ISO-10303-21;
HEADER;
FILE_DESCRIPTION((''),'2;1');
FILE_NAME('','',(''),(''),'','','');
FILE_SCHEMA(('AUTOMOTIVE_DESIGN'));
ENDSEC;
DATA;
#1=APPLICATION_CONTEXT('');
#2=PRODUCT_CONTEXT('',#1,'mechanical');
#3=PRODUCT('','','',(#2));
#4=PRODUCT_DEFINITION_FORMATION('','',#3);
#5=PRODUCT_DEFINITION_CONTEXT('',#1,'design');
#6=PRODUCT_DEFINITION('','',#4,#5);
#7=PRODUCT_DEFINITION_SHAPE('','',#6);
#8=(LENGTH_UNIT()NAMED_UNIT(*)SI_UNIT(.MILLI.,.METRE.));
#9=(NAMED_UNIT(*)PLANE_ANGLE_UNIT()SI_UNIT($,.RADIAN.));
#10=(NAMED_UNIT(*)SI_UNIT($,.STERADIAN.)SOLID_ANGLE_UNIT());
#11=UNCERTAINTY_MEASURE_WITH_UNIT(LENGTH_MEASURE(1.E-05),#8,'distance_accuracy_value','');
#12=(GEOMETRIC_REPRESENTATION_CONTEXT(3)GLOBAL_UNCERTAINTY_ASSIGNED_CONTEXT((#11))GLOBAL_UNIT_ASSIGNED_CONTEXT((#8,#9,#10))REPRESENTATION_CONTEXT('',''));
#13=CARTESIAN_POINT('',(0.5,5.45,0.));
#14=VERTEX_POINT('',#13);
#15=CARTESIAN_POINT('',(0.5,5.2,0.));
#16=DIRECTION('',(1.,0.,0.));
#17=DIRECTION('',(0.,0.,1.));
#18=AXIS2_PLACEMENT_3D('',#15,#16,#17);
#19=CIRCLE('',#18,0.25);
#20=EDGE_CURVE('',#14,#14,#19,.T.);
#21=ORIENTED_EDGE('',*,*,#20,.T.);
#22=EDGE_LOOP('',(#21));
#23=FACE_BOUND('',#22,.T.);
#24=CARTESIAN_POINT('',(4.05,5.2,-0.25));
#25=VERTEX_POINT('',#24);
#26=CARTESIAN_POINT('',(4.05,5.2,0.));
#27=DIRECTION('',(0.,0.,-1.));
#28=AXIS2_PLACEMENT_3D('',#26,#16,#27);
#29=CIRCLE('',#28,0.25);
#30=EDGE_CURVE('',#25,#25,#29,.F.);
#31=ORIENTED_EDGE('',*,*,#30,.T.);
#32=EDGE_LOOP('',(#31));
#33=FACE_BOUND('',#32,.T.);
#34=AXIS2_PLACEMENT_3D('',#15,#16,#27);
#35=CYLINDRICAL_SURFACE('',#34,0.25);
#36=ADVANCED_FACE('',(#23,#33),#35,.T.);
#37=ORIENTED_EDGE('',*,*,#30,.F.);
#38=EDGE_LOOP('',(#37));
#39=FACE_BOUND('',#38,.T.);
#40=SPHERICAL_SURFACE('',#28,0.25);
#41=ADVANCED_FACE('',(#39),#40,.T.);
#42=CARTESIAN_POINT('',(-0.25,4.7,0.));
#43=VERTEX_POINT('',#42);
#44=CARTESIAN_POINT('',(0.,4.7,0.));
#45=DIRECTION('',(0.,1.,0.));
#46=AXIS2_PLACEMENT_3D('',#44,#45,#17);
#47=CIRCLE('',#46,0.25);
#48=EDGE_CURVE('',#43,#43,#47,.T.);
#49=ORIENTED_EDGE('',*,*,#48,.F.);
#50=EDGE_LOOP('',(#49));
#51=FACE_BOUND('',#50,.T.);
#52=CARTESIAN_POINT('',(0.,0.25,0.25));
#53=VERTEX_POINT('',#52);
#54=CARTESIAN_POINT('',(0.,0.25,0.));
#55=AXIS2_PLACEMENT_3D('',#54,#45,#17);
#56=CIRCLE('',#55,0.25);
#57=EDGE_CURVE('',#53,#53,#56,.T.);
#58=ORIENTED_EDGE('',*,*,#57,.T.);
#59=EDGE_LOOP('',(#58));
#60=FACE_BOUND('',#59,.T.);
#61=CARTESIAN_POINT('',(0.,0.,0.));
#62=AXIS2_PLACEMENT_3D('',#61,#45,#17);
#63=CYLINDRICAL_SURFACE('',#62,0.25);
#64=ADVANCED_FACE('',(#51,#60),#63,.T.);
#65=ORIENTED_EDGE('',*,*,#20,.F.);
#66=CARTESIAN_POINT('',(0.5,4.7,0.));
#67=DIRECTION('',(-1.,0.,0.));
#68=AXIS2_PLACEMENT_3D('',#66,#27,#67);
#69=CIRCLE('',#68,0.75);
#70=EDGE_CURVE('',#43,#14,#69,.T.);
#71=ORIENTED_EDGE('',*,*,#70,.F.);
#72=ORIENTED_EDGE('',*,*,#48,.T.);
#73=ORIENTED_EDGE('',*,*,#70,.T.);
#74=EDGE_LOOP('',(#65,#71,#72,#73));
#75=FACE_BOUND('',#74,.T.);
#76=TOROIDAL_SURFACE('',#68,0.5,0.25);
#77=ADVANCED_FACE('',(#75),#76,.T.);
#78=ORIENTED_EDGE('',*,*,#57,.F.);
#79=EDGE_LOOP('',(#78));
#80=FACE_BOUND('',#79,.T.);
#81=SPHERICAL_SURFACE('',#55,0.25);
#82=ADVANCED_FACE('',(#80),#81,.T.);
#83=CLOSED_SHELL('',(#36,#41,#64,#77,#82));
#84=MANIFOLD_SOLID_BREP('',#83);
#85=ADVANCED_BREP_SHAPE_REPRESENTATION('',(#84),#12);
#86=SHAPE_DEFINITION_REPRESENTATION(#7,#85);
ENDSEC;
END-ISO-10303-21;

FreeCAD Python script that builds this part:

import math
import FreeCAD as App
import Part
import Sketcher


def edges_at(feature, points):
    """Names of the edges that pass closest to the given points."""
    edges = feature.Shape.Edges
    near = lambda p: min(range(len(edges)), key=lambda i: edges[i].distToShape(Part.Vertex(*p))[0])
    return sorted({f"Edge{near(p) + 1}" for p in points})

doc = App.newDocument("Part")
body = doc.addObject("PartDesign::Body", "Body")

sketch1 = doc.addObject("Sketcher::SketchObject", "Sketch")
body.addObject(sketch1)
sketch1.AttachmentSupport = (doc.XZ_Plane, [""])
sketch1.MapMode = "FlatFace"
sketch1.addGeometry(Part.Circle(App.Vector(0, 0, 0), App.Vector(0, 0, 1), 0.25), False)
sketch1.addConstraint(Sketcher.Constraint("Coincident", 0, 3, -1, 1))
sketch1.addConstraint(Sketcher.Constraint("Diameter", 0, 0.5))

sketch2 = doc.addObject("Sketcher::SketchObject", "Sketch001")
body.addObject(sketch2)
sketch2.AttachmentSupport = (doc.XY_Plane, [""])
sketch2.MapMode = "FlatFace"
sketch2.addGeometry(Part.LineSegment(App.Vector(0, 0, 0), App.Vector(0, 4.7, 0)), False)
sketch2.addGeometry(Part.ArcOfCircle(Part.Circle(App.Vector(0.5, 4.7, 0), App.Vector(0, 0, 1), 0.5), math.radians(90), math.radians(180)), False)
sketch2.addGeometry(Part.LineSegment(App.Vector(0.5, 5.2, 0), App.Vector(4.3, 5.2, 0)), False)
sketch2.addConstraint(Sketcher.Constraint("Tangent", 0, 2, 1, 2))
sketch2.addConstraint(Sketcher.Constraint("Tangent", 1, 1, 2, 1))
sketch2.addConstraint(Sketcher.Constraint("Vertical", 0))
sketch2.addConstraint(Sketcher.Constraint("Horizontal", 2))
sketch2.addConstraint(Sketcher.Constraint("Coincident", 0, 1, -1, 1))
sketch2.addConstraint(Sketcher.Constraint("Radius", 1, 0.5))
sketch2.addConstraint(Sketcher.Constraint("DistanceX", 2, 1, 2, 2, 3.8))
sketch2.addConstraint(Sketcher.Constraint("DistanceY", 0, 1, 0, 2, 4.7))
doc.recompute()

additivepipe = doc.addObject("PartDesign::AdditivePipe", "AdditivePipe")
body.addObject(additivepipe)
additivepipe.Profile = sketch1
additivepipe.Spine = (sketch2, ["Edge1", "Edge2", "Edge3"])
doc.recompute()

fillet = doc.addObject("PartDesign::Fillet", "Fillet")
body.addObject(fillet)
fillet.Base = (additivepipe, edges_at(additivepipe, [(4.3, 5.45, 0), (-0.25, 0, 0)]))
fillet.Radius = 0.25

doc.recompute()
